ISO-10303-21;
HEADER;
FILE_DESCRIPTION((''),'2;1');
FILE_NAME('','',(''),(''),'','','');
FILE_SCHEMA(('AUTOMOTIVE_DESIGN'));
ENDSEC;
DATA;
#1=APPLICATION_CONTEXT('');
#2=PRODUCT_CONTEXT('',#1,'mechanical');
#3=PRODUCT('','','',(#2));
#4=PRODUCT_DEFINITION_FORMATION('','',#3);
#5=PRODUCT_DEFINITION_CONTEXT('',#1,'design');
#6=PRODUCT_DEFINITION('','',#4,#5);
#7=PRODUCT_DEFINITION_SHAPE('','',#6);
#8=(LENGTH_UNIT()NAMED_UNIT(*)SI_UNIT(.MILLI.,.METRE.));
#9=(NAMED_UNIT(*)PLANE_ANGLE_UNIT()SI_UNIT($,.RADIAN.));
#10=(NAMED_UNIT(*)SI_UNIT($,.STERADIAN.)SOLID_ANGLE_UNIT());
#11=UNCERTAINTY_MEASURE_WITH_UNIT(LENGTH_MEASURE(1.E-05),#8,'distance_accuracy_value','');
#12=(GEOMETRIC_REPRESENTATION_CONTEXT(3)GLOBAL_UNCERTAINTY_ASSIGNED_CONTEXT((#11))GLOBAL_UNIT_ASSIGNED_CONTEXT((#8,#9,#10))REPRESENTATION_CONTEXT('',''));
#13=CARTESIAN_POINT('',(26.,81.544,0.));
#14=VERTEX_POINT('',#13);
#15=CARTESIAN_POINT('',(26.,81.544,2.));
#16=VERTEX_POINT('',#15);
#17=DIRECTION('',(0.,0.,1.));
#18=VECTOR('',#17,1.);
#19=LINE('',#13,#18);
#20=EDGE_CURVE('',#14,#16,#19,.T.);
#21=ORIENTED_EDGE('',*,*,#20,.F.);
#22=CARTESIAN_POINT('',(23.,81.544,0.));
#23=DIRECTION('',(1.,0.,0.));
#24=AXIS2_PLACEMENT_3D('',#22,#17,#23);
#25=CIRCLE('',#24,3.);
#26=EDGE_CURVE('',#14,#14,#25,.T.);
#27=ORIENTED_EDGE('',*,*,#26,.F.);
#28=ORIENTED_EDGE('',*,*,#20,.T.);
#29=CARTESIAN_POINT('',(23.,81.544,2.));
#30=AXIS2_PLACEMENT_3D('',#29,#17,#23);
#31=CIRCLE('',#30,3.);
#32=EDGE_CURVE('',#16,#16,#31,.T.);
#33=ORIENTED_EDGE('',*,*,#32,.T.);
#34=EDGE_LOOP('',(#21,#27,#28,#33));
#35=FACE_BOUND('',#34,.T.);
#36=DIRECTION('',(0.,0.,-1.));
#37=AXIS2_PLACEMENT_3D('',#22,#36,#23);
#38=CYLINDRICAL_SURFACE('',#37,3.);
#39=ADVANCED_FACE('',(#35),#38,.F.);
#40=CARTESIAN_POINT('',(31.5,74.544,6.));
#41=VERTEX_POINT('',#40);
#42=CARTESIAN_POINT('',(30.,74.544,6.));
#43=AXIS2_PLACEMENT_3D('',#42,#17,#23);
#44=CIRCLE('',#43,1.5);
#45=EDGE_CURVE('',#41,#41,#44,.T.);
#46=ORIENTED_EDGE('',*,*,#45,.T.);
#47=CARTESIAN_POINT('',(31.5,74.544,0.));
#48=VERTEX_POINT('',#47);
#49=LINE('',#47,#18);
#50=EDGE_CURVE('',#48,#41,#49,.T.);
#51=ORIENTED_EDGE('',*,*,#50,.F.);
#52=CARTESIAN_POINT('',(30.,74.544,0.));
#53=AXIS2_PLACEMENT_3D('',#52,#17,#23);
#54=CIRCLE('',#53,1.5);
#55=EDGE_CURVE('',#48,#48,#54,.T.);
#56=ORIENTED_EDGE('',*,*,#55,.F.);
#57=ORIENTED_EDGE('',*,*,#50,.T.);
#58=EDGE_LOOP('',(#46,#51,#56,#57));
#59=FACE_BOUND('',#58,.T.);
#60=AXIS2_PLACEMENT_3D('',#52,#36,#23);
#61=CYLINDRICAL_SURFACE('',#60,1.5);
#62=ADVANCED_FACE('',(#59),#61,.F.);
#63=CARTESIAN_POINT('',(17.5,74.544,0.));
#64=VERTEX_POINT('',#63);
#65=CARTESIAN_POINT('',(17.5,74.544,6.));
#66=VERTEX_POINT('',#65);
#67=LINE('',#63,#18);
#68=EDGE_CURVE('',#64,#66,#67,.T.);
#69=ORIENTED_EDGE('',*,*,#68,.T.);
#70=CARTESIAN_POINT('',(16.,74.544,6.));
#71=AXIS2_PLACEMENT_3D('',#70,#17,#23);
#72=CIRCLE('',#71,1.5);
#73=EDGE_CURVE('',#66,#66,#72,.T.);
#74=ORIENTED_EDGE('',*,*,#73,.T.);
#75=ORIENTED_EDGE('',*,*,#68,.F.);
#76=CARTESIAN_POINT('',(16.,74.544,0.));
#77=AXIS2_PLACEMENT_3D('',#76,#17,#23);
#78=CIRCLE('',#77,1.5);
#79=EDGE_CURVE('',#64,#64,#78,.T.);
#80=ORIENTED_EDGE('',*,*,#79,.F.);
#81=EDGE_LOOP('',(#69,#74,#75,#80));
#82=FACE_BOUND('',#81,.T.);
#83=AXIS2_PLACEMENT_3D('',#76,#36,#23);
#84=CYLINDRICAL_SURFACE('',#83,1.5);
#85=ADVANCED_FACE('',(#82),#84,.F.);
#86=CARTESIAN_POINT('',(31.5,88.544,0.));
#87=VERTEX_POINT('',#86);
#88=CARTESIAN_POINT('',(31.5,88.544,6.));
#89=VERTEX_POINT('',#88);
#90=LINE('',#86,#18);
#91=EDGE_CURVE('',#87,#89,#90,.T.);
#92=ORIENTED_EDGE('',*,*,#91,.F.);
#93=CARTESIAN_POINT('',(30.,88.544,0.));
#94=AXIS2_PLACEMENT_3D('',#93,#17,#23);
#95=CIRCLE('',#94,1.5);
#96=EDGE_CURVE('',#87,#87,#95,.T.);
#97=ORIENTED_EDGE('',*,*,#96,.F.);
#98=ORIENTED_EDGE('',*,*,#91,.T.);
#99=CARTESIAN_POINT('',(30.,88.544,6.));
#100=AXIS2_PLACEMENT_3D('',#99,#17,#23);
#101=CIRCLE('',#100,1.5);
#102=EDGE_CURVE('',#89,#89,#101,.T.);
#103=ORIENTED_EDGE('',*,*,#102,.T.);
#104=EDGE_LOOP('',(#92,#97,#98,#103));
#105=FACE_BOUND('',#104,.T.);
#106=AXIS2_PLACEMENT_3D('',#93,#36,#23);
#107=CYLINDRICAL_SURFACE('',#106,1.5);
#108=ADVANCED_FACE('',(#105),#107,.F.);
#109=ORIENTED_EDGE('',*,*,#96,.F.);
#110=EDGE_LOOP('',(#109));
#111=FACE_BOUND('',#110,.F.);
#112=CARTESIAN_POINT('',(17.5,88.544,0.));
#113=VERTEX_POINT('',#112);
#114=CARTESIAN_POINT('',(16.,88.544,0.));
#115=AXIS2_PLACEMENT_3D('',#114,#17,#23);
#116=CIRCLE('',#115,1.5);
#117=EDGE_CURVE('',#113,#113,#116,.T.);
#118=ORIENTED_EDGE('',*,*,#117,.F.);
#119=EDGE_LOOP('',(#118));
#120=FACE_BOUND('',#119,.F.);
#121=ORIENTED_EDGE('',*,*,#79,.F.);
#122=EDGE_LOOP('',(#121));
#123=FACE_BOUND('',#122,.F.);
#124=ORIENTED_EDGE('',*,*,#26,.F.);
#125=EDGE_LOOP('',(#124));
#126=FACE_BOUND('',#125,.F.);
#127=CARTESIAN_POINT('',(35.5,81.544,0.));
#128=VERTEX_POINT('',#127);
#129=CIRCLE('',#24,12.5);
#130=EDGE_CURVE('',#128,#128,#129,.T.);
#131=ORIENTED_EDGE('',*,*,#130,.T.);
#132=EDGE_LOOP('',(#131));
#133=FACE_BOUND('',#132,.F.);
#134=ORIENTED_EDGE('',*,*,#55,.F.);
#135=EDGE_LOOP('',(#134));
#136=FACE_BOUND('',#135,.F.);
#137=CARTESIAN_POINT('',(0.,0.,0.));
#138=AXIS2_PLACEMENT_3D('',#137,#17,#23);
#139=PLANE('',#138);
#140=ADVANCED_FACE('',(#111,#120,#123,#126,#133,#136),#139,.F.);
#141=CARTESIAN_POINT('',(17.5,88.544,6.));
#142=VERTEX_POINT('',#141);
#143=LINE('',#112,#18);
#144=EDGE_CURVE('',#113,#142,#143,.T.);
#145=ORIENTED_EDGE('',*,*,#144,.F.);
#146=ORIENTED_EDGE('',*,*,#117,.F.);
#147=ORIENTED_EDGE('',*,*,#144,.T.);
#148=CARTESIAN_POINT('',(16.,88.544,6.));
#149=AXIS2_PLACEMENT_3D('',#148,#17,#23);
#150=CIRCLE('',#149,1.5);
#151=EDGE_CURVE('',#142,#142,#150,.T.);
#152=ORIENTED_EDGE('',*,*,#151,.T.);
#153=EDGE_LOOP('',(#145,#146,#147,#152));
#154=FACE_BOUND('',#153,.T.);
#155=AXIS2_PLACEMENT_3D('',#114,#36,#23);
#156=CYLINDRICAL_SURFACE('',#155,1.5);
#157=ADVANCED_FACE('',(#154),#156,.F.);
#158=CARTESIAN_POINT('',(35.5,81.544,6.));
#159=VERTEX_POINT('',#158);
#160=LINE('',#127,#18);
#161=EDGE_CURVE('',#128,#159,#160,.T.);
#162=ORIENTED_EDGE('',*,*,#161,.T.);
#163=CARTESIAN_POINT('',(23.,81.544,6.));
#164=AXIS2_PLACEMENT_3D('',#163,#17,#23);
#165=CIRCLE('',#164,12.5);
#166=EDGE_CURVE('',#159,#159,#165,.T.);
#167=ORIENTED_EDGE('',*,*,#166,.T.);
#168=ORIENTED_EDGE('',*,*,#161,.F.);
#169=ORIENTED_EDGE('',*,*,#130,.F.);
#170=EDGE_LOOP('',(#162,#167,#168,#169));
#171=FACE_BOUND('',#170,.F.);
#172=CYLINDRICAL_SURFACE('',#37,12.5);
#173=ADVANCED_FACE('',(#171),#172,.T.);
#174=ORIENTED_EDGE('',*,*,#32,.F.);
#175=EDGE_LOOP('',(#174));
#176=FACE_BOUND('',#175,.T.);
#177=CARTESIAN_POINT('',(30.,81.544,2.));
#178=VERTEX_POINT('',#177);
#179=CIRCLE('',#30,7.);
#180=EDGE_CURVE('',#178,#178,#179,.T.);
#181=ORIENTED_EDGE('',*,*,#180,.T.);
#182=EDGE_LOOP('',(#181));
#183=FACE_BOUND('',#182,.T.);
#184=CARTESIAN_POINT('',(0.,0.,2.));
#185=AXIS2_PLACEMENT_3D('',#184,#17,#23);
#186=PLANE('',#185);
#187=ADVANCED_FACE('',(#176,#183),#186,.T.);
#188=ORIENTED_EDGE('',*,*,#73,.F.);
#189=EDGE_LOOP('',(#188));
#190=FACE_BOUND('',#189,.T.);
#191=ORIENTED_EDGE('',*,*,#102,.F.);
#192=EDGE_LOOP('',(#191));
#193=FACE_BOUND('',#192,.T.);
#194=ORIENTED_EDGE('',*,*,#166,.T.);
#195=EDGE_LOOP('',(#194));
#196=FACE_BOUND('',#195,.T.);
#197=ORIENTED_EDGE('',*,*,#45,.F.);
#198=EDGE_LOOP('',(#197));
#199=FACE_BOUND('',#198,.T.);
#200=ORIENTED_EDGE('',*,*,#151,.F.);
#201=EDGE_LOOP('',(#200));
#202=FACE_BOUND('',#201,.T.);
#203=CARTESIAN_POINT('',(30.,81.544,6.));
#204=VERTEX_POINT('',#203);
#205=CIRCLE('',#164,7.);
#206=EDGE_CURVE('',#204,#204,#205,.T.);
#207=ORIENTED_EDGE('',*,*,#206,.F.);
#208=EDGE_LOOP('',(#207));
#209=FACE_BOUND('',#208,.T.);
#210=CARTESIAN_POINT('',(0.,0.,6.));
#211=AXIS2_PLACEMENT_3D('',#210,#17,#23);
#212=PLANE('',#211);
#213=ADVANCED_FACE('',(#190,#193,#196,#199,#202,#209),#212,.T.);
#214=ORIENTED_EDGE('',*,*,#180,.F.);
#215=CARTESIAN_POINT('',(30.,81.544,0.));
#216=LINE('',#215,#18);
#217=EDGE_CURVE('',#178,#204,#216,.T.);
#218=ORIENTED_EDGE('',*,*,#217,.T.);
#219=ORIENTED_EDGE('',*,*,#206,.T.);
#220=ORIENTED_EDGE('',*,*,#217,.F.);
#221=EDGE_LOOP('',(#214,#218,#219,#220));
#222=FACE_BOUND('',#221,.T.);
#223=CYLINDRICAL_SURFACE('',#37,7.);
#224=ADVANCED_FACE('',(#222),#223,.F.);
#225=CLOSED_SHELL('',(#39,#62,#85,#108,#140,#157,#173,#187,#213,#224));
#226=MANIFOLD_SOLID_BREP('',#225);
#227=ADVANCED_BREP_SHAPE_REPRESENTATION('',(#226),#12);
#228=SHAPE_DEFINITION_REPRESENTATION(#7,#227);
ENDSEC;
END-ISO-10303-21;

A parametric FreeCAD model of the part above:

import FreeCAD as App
import Part
import Sketcher

V = App.Vector
Q = App.Units.Quantity

doc = App.newDocument("Part")
body = doc.addObject("PartDesign::Body", "Body")

# Sketch on XY plane
sketch1 = doc.addObject("Sketcher::SketchObject", "Sketch")
body.addObject(sketch1)
sketch1.AttachmentSupport = (doc.XY_Plane, [""])
sketch1.MapMode = "FlatFace"
sketch1.addGeometry([
    Part.Circle(V(23, 81.5, 0), V(0, 0, 1), 12.5),  # 0
    Part.Circle(V(16, 74.5, 0), V(0, 0, 1), 1.5),  # 1
    Part.Circle(V(30, 74.5, 0), V(0, 0, 1), 1.5),  # 2
    Part.Circle(V(16, 88.5, 0), V(0, 0, 1), 1.5),  # 3
    Part.Circle(V(23, 81.5, 0), V(0, 0, 1), 7),  # 4
    Part.Circle(V(30, 88.5, 0), V(0, 0, 1), 1.5),  # 5
], False)
sketch1.addConstraint([
    Sketcher.Constraint("Coincident", 4, 3, 0, 3),
    Sketcher.Constraint("Equal", 1, 2),
    Sketcher.Constraint("Equal", 2, 3),
    Sketcher.Constraint("Equal", 3, 5),
    Sketcher.Constraint("Horizontal", 1, 3, 2, 3),
    Sketcher.Constraint("Horizontal", 3, 3, 5, 3),
    Sketcher.Constraint("Vertical", 1, 3, 3, 3),
    Sketcher.Constraint("Vertical", 2, 3, 5, 3),
    Sketcher.Constraint("Diameter", 0, Q("25 mm")),
    Sketcher.Constraint("Diameter", 1, Q("3 mm")),
    Sketcher.Constraint("Diameter", 4, Q("14 mm")),
    Sketcher.Constraint("DistanceX", -1, 1, 0, 3, Q("23 mm")),
    Sketcher.Constraint("DistanceX", -1, 1, 1, 3, Q("16 mm")),
    Sketcher.Constraint("DistanceX", -1, 1, 2, 3, Q("30 mm")),
    Sketcher.Constraint("DistanceY", 1, 3, 0, 3, Q("7 mm")),
    Sketcher.Constraint("DistanceY", 0, 3, 3, 3, Q("7 mm")),
    Sketcher.Constraint("DistanceY", -1, 1, 0, 3, Q("81.544 mm")),
])
pad1 = doc.addObject("PartDesign::Pad", "Pad")
body.addObject(pad1)
pad1.Profile = sketch1
pad1.Length = 6

# Sketch on XY plane
sketch2 = doc.addObject("Sketcher::SketchObject", "Sketch001")
body.addObject(sketch2)
sketch2.AttachmentSupport = (doc.XY_Plane, [""])
sketch2.MapMode = "FlatFace"
sketch2.addGeometry([
    Part.Circle(V(23, 81.5, 0), V(0, 0, 1), 7),
    Part.Circle(V(23, 81.5, 0), V(0, 0, 1), 3),
], False)
sketch2.addConstraint([
    Sketcher.Constraint("Coincident", 1, 3, 0, 3),
    Sketcher.Constraint("Diameter", 1, Q("6 mm")),
    Sketcher.Constraint("Diameter", 0, Q("14 mm")),
    Sketcher.Constraint("DistanceX", -1, 1, 0, 3, Q("23 mm")),
    Sketcher.Constraint("DistanceY", -1, 1, 0, 3, Q("81.544 mm")),
])
pad2 = doc.addObject("PartDesign::Pad", "Pad001")
body.addObject(pad2)
pad2.Profile = sketch2
pad2.Length = 2

doc.recompute()
